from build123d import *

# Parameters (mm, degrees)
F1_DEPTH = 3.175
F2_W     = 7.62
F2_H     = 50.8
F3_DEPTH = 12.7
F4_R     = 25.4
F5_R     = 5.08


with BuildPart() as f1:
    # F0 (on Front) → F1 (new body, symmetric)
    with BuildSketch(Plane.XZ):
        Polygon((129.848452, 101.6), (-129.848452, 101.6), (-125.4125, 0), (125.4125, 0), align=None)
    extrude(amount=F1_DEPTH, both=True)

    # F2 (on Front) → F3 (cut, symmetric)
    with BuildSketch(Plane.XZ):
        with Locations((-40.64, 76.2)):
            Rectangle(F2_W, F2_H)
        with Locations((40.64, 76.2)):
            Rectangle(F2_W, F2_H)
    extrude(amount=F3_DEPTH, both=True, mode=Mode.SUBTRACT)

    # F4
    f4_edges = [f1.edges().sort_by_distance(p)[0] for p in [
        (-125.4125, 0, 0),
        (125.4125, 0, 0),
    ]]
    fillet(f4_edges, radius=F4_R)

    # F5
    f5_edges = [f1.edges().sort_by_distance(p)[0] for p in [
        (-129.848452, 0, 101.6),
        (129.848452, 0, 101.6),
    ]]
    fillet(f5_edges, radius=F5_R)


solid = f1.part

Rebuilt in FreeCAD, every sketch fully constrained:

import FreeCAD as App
import Part
import Sketcher
from FreeCAD import Vector
Q = App.Units.Quantity


def edges_at(feature, points):
    """Names of the edges that pass closest to the given points."""
    edges = feature.Shape.Edges
    near = lambda p: min(range(len(edges)), key=lambda i: edges[i].distToShape(Part.Vertex(*p))[0])
    return sorted({f"Edge{near(p) + 1}" for p in points})

doc = App.newDocument("Part")
body = doc.addObject("PartDesign::Body", "Body")

# Sketch on XZ plane
sketch1 = doc.addObject("Sketcher::SketchObject", "Sketch")
body.addObject(sketch1)
sketch1.AttachmentSupport = (doc.XZ_Plane, [""])
sketch1.MapMode = "FlatFace"
sketch1.addGeometry([
    Part.LineSegment(Vector(129.848452, 101.6, 0), Vector(-129.848452, 101.6, 0)),
    Part.LineSegment(Vector(-129.848452, 101.6, 0), Vector(-125.4125, 0, 0)),
    Part.LineSegment(Vector(-125.4125, 0, 0), Vector(125.4125, 0, 0)),
    Part.LineSegment(Vector(125.4125, 0, 0), Vector(129.848452, 101.6, 0)),
], False)
sketch1.addConstraint([
    Sketcher.Constraint("Coincident", 0, 2, 1, 1),
    Sketcher.Constraint("Coincident", 1, 2, 2, 1),
    Sketcher.Constraint("Coincident", 2, 2, 3, 1),
    Sketcher.Constraint("Coincident", 3, 2, 0, 1),
    Sketcher.Constraint("Horizontal", 0),
    Sketcher.Constraint("Horizontal", 2),
    Sketcher.Constraint("Symmetric", 1, 2, 2, 2, -1, 1),
    Sketcher.Constraint("Equal", 1, 3),
    Sketcher.Constraint("DistanceY", -1, 1, 0, 2, Q("4 in")),
    Sketcher.Constraint("Angle", 1, Q("-87.5 deg")),
    Sketcher.Constraint("DistanceX", 2, 1, 2, 2, Q("9.875 in")),
])
pad1 = doc.addObject("PartDesign::Pad", "Pad")
body.addObject(pad1)
pad1.Profile = sketch1
pad1.Length = Q("0.25 in")
pad1.Midplane = True

# Sketch on XZ plane
sketch2 = doc.addObject("Sketcher::SketchObject", "Sketch001")
body.addObject(sketch2)
sketch2.AttachmentSupport = (doc.XZ_Plane, [""])
sketch2.MapMode = "FlatFace"
sketch2.addGeometry([
    Part.LineSegment(Vector(-44.45, 101.6, 0), Vector(-44.45, 50.8, 0)),  # 0
    Part.LineSegment(Vector(-44.45, 50.8, 0), Vector(-36.83, 50.8, 0)),  # 1
    Part.LineSegment(Vector(-36.83, 50.8, 0), Vector(-36.83, 101.6, 0)),  # 2
    Part.LineSegment(Vector(-36.83, 101.6, 0), Vector(-44.45, 101.6, 0)),  # 3
    Part.LineSegment(Vector(36.83, 101.6, 0), Vector(36.83, 50.8, 0)),  # 4
    Part.LineSegment(Vector(36.83, 50.8, 0), Vector(44.45, 50.8, 0)),  # 5
    Part.LineSegment(Vector(44.45, 50.8, 0), Vector(44.45, 101.6, 0)),  # 6
    Part.LineSegment(Vector(44.45, 101.6, 0), Vector(36.83, 101.6, 0)),  # 7
], False)
sketch2.addConstraint([
    Sketcher.Constraint("Coincident", 0, 2, 1, 1),
    Sketcher.Constraint("Coincident", 1, 2, 2, 1),
    Sketcher.Constraint("Coincident", 2, 2, 3, 1),
    Sketcher.Constraint("Coincident", 3, 2, 0, 1),
    Sketcher.Constraint("Coincident", 4, 2, 5, 1),
    Sketcher.Constraint("Coincident", 5, 2, 6, 1),
    Sketcher.Constraint("Coincident", 6, 2, 7, 1),
    Sketcher.Constraint("Coincident", 7, 2, 4, 1),
    Sketcher.Constraint("Vertical", 0),
    Sketcher.Constraint("Horizontal", 1),
    Sketcher.Constraint("Vertical", 2),
    Sketcher.Constraint("Horizontal", 3),
    Sketcher.Constraint("Vertical", 4),
    Sketcher.Constraint("Horizontal", 5),
    Sketcher.Constraint("Vertical", 6),
    Sketcher.Constraint("Horizontal", 7),
    Sketcher.Constraint("Symmetric", 1, 2, 4, 2, -2),
    Sketcher.Constraint("Symmetric", 3, 2, 6, 2, -2),
    Sketcher.Constraint("DistanceY", 0, 2, 0, 1, Q("2 in")),
    Sketcher.Constraint("DistanceX", 1, 1, 1, 2, Q("0.3 in")),
    Sketcher.Constraint("DistanceY", -1, 1, 0, 2, Q("2 in")),
    Sketcher.Constraint("DistanceX", 1, 2, 4, 2, Q("2.9 in")),
])
pocket1 = doc.addObject("PartDesign::Pocket", "Pocket")
body.addObject(pocket1)
pocket1.Profile = sketch2
pocket1.Length = Q("1 in")
pocket1.Midplane = True
doc.recompute()

fillet = doc.addObject("PartDesign::Fillet", "Fillet")
body.addObject(fillet)
fillet.Base = (pocket1, edges_at(pocket1, [(-125.412, 0, 0), (125.412, 0, 0)]))
fillet.Radius = Q("1 in")
doc.recompute()

fillet2 = doc.addObject("PartDesign::Fillet", "Fillet001")
body.addObject(fillet2)
fillet2.Base = (fillet, edges_at(fillet, [(-129.848, 0, 101.6), (129.848, 0, 101.6)]))
fillet2.Radius = Q("0.2 in")

doc.recompute()
